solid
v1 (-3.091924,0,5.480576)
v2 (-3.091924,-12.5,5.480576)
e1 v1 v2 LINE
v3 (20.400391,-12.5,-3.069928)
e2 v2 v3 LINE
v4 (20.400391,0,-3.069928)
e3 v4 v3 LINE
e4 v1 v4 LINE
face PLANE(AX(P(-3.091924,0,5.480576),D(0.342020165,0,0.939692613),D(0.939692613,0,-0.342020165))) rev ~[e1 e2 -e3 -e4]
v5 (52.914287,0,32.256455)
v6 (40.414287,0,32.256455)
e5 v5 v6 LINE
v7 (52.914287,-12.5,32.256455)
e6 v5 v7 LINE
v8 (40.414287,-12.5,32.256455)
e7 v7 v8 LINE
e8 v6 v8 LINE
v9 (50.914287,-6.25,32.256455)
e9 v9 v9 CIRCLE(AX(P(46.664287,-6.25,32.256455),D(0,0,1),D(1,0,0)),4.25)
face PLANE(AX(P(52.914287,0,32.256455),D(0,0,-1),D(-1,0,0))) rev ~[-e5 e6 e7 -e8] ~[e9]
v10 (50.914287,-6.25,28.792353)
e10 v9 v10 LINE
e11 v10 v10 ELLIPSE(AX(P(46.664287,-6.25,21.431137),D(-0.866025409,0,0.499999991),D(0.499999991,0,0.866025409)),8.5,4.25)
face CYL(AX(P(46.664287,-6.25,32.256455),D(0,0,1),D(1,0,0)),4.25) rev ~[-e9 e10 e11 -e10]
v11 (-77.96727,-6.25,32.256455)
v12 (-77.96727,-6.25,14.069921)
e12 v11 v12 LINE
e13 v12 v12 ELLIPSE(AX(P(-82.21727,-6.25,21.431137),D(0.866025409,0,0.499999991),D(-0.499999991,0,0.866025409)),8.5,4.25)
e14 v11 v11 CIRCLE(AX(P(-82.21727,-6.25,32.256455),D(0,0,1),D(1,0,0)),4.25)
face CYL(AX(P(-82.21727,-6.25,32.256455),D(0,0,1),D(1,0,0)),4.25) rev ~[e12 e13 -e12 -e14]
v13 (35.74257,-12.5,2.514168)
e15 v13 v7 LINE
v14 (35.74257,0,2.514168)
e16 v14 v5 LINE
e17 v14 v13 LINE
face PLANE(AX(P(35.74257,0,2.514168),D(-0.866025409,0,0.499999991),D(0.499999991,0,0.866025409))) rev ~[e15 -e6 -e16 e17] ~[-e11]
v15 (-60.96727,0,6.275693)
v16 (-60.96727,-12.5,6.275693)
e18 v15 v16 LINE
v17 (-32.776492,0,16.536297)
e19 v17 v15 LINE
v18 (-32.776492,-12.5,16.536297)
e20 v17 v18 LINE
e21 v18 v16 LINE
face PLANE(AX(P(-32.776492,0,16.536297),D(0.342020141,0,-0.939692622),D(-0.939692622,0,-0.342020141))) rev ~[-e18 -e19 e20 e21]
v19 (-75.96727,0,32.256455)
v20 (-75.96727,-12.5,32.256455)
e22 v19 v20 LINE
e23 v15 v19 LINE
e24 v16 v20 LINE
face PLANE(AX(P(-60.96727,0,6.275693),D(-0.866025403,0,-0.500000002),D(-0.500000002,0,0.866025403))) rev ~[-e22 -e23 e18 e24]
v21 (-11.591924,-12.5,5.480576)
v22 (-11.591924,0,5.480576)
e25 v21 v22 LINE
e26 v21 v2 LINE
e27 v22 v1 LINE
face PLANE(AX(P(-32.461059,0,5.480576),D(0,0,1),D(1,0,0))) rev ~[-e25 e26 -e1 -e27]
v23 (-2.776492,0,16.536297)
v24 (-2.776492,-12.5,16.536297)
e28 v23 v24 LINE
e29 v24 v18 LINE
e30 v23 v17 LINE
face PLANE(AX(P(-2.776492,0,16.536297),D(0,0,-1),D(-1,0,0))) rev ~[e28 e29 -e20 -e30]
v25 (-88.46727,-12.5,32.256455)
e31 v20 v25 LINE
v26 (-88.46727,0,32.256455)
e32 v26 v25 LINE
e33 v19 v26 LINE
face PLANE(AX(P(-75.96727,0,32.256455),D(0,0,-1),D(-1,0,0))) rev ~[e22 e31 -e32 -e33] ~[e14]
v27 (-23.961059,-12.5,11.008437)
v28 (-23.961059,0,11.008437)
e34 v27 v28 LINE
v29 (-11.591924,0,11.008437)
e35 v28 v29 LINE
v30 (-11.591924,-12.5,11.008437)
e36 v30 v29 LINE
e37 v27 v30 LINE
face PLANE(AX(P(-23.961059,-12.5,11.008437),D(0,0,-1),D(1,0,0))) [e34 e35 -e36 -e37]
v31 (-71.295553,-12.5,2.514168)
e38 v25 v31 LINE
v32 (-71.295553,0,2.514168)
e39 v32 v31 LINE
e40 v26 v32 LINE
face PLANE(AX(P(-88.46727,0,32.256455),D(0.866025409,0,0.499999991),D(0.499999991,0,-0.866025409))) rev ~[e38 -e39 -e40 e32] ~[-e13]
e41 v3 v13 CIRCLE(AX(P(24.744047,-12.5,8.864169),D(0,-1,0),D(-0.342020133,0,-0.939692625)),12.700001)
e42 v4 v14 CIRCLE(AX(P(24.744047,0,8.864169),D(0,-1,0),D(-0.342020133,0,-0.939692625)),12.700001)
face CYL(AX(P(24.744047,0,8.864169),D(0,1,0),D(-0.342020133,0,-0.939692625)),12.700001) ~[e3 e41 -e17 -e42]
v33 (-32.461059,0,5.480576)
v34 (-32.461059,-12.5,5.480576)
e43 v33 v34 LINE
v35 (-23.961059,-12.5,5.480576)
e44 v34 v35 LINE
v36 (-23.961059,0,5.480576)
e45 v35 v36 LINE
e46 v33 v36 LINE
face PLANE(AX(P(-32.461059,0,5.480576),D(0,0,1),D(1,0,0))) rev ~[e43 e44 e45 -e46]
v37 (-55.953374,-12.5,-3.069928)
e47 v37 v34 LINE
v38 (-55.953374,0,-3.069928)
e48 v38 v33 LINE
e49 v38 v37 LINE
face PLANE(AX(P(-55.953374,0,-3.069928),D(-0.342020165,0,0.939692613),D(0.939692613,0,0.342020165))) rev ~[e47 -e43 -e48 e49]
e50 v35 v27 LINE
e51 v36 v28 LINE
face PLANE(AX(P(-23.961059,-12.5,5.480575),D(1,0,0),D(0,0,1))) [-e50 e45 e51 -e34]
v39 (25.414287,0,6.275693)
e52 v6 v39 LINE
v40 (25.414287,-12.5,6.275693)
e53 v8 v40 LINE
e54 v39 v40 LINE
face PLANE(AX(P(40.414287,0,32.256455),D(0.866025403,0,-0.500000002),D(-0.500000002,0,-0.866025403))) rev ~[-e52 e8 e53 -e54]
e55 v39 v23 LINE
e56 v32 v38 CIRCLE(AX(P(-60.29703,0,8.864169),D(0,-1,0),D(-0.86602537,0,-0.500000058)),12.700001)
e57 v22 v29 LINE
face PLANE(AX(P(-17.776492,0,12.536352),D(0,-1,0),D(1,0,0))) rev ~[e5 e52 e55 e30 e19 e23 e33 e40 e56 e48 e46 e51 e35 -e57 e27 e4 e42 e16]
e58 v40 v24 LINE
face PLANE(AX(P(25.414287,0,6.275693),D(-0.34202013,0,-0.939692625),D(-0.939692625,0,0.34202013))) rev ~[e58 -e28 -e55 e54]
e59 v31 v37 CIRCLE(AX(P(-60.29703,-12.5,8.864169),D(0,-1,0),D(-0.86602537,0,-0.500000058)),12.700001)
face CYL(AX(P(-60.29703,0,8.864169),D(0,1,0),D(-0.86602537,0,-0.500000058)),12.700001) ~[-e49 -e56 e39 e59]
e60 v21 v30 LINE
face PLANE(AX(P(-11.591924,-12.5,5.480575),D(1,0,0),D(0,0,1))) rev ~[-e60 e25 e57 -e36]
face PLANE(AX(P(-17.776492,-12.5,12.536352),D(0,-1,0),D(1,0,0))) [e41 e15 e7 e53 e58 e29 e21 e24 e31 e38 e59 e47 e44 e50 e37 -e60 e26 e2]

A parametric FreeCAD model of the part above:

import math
import FreeCAD as App
import Part
import Sketcher
from FreeCAD import Vector
Q = App.Units.Quantity

doc = App.newDocument("Part")
body = doc.addObject("PartDesign::Body", "Body")

# Sketch on XZ plane
sketch1 = body.newObject("Sketcher::SketchObject", "Sketch")
sketch1.AttachmentSupport = (doc.getObject("XZ_Plane"), [""])
sketch1.MapMode = "FlatFace"
sketch1.addGeometry([
    Part.LineSegment(Vector(-3, 17, 0), Vector(-33, 17, 0)),  # 0
    Part.LineSegment(Vector(-33, 17, 0), Vector(-61, 6, 0)),  # 1
    Part.LineSegment(Vector(-61, 6, 0), Vector(-76, 32, 0)),  # 2
    Part.LineSegment(Vector(-76, 32, 0), Vector(-88, 32, 0)),  # 3
    Part.LineSegment(Vector(-88, 32, 0), Vector(-71, 3, 0)),  # 4
    Part.ArcOfCircle(Part.Circle(Vector(-60, 9, 0), Vector(0, 0, 1), 13), math.radians(-150), math.radians(-70)),  # 5
    Part.LineSegment(Vector(-56, -3, 0), Vector(-32, 5, 0)),  # 6
    Part.LineSegment(Vector(-32, 5, 0), Vector(-3, 5, 0)),  # 7
    Part.LineSegment(Vector(-3, 5, 0), Vector(20, -3, 0)),  # 8
    Part.ArcOfCircle(Part.Circle(Vector(25, 9, 0), Vector(0, 0, 1), 13), math.radians(-110), math.radians(-30)),  # 9
    Part.LineSegment(Vector(36, 3, 0), Vector(53, 32, 0)),  # 10
    Part.LineSegment(Vector(53, 32, 0), Vector(40, 32, 0)),  # 11
    Part.LineSegment(Vector(40, 32, 0), Vector(25, 6, 0)),  # 12
    Part.LineSegment(Vector(25, 6, 0), Vector(-3, 17, 0)),  # 13
], False)
sketch1.addConstraint([
    Sketcher.Constraint("Coincident", 0, 2, 1, 1),
    Sketcher.Constraint("Coincident", 1, 2, 2, 1),
    Sketcher.Constraint("Coincident", 2, 2, 3, 1),
    Sketcher.Constraint("Coincident", 3, 2, 4, 1),
    Sketcher.Constraint("Tangent", 4, 2, 5, 1),
    Sketcher.Constraint("Tangent", 5, 2, 6, 1),
    Sketcher.Constraint("Coincident", 6, 2, 7, 1),
    Sketcher.Constraint("Coincident", 7, 2, 8, 1),
    Sketcher.Constraint("Tangent", 8, 2, 9, 1),
    Sketcher.Constraint("Tangent", 9, 2, 10, 1),
    Sketcher.Constraint("Coincident", 10, 2, 11, 1),
    Sketcher.Constraint("Coincident", 11, 2, 12, 1),
    Sketcher.Constraint("Coincident", 12, 2, 13, 1),
    Sketcher.Constraint("Coincident", 13, 2, 0, 1),
    Sketcher.Constraint("Horizontal", 0),
    Sketcher.Constraint("Horizontal", 3),
    Sketcher.Constraint("Horizontal", 7),
    Sketcher.Constraint("Horizontal", 11),
    Sketcher.Constraint("Equal", 5, 9),
    Sketcher.Constraint("Parallel", 2, 4),
    Sketcher.Constraint("Parallel", 1, 6),
    Sketcher.Constraint("Parallel", 10, 12),
    Sketcher.Constraint("Parallel", 8, 13),
    Sketcher.Constraint("Horizontal", 5, 3, 9, 3),
    Sketcher.Constraint("Horizontal", 5, 2, 8, 2),
    Sketcher.Constraint("Horizontal", 4, 2, 9, 2),
    Sketcher.Constraint("Horizontal", 3, 2, 10, 2),
    Sketcher.Constraint("Horizontal", 1, 2, 12, 2),
    Sketcher.Constraint("Equal", 3, 11),
    Sketcher.Constraint("Equal", 1, 2),
    Sketcher.Constraint("Radius", 5, Q("12.700001 mm")),
    Sketcher.Constraint("DistanceX", 0, 2, 0, 1, Q("30 mm")),
    Sketcher.Constraint("Angle", 1, Q("-160 deg")),
    Sketcher.Constraint("Angle", 2, Q("120 deg")),
    Sketcher.Constraint("Distance", 1, Q("29.999999 mm")),
    Sketcher.Constraint("Distance", 6, Q("25 mm")),
    Sketcher.Constraint("DistanceX", 3, 2, 3, 1, Q("12.5 mm")),
    Sketcher.Constraint("DistanceX", 7, 1, 7, 2, Q("29.369135 mm")),
    Sketcher.Constraint("DistanceX", 5, 3, -1, 1, Q("60.29703 mm")),
    Sketcher.Constraint("DistanceY", -1, 1, 5, 3, Q("8.864169 mm")),
])
pad1 = body.newObject("PartDesign::Pad", "Pad")
pad1.Profile = sketch1
pad1.Length = 12.5

# Sketch on XY plane
sketch2 = body.newObject("Sketcher::SketchObject", "Sketch001")
sketch2.AttachmentSupport = (doc.getObject("XY_Plane"), [""])
sketch2.MapMode = "FlatFace"
sketch2.AttachmentOffset = App.Placement(Vector(0, 0, 32.256455), App.Rotation())
sketch2.addGeometry(Part.Circle(Vector(-82.2, -6.2, 0), Vector(0, 0, 1), 4.2), False)
sketch2.addConstraint([
    Sketcher.Constraint("Diameter", 0, Q("8.5 mm")),
    Sketcher.Constraint("DistanceY", 0, 3, -1, 1, Q("6.25 mm")),
    Sketcher.Constraint("DistanceX", 0, 3, -1, 1, Q("82.21727 mm")),
])
pocket1 = body.newObject("PartDesign::Pocket", "Pocket")
pocket1.Profile = sketch2
pocket1.Length = 25.4

# Sketch on XY plane
sketch3 = body.newObject("Sketcher::SketchObject", "Sketch002")
sketch3.AttachmentSupport = (doc.getObject("XY_Plane"), [""])
sketch3.MapMode = "FlatFace"
sketch3.AttachmentOffset = App.Placement(Vector(0, 0, 32.256455), App.Rotation())
sketch3.addGeometry(Part.Circle(Vector(46.7, -6.2, 0), Vector(0, 0, 1), 4.2), False)
sketch3.addConstraint([
    Sketcher.Constraint("Diameter", 0, Q("8.5 mm")),
    Sketcher.Constraint("DistanceY", 0, 3, -1, 1, Q("6.25 mm")),
    Sketcher.Constraint("DistanceX", -1, 1, 0, 3, Q("46.664287 mm")),
])
pocket2 = body.newObject("PartDesign::Pocket", "Pocket001")
pocket2.Profile = sketch3
pocket2.Length = 54.356

# Sketch on XZ plane
sketch4 = body.newObject("Sketcher::SketchObject", "Sketch003")
sketch4.AttachmentSupport = (doc.getObject("XZ_Plane"), [""])
sketch4.MapMode = "FlatFace"
sketch4.AttachmentOffset = App.Placement(Vector(0, 0, 12.5), App.Rotation())
sketch4.addGeometry([
    Part.LineSegment(Vector(-24, 11, 0), Vector(-24, 5, 0)),
    Part.LineSegment(Vector(-24, 5, 0), Vector(-12, 5, 0)),
    Part.LineSegment(Vector(-12, 5, 0), Vector(-12, 11, 0)),
    Part.LineSegment(Vector(-12, 11, 0), Vector(-24, 11, 0)),
], False)
sketch4.addConstraint([
    Sketcher.Constraint("Coincident", 0, 2, 1, 1),
    Sketcher.Constraint("Coincident", 1, 2, 2, 1),
    Sketcher.Constraint("Coincident", 2, 2, 3, 1),
    Sketcher.Constraint("Coincident", 3, 2, 0, 1),
    Sketcher.Constraint("Vertical", 0),
    Sketcher.Constraint("Horizontal", 1),
    Sketcher.Constraint("Vertical", 2),
    Sketcher.Constraint("Horizontal", 3),
    Sketcher.Constraint("DistanceY", 0, 2, 0, 1, Q("5.527861 mm")),
    Sketcher.Constraint("DistanceX", 1, 1, 1, 2, Q("12.369135 mm")),
    Sketcher.Constraint("DistanceX", 0, 2, -1, 1, Q("23.961059 mm")),
    Sketcher.Constraint("DistanceY", -1, 1, 0, 2, Q("5.480575 mm")),
])
pocket3 = body.newObject("PartDesign::Pocket", "Pocket002")
pocket3.Profile = sketch4
pocket3.Length = 25.4

doc.recompute()
